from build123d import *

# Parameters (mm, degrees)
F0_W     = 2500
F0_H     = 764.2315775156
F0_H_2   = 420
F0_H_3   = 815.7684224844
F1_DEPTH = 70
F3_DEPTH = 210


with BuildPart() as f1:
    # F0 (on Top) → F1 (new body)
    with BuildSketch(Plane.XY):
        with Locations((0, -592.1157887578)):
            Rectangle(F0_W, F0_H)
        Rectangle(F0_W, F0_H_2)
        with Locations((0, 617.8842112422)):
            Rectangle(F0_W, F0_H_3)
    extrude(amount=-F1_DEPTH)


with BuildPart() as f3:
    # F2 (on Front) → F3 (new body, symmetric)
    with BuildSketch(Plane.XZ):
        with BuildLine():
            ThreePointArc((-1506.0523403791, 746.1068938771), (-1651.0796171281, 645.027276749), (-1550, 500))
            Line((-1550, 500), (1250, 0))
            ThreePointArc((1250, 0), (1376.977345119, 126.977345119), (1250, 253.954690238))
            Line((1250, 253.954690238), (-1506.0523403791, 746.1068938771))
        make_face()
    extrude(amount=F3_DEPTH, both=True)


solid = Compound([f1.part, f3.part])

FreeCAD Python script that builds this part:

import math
import FreeCAD as App
import Part
import Sketcher

doc = App.newDocument("Part")
body = doc.addObject("PartDesign::Body", "Body")

sketch1 = doc.addObject("Sketcher::SketchObject", "Sketch")
body.addObject(sketch1)
sketch1.AttachmentSupport = (doc.XY_Plane, [""])
sketch1.MapMode = "FlatFace"
sketch1.addGeometry(Part.LineSegment(App.Vector(-1250, -974, 0), App.Vector(1250, -974, 0)), False)
sketch1.addGeometry(Part.LineSegment(App.Vector(1250, -974, 0), App.Vector(1250, 1026, 0)), False)
sketch1.addGeometry(Part.LineSegment(App.Vector(1250, 1026, 0), App.Vector(-1250, 1026, 0)), False)
sketch1.addGeometry(Part.LineSegment(App.Vector(-1250, 1026, 0), App.Vector(-1250, -974, 0)), False)
sketch1.addConstraint(Sketcher.Constraint("Coincident", 0, 2, 1, 1))
sketch1.addConstraint(Sketcher.Constraint("Coincident", 1, 2, 2, 1))
sketch1.addConstraint(Sketcher.Constraint("Coincident", 2, 2, 3, 1))
sketch1.addConstraint(Sketcher.Constraint("Coincident", 3, 2, 0, 1))
sketch1.addConstraint(Sketcher.Constraint("Horizontal", 0))
sketch1.addConstraint(Sketcher.Constraint("Vertical", 1))
sketch1.addConstraint(Sketcher.Constraint("Horizontal", 2))
sketch1.addConstraint(Sketcher.Constraint("Vertical", 3))
sketch1.addConstraint(Sketcher.Constraint("DistanceX", 0, 1, 0, 2, 2500.0))
sketch1.addConstraint(Sketcher.Constraint("DistanceY", 1, 1, 1, 2, 2000.0))
sketch1.addConstraint(Sketcher.Constraint("DistanceX", -1, 1, 0, 2, 1250.0))
sketch1.addConstraint(Sketcher.Constraint("DistanceY", 0, 2, -1, 1, 974.231578))
pad1 = doc.addObject("PartDesign::Pad", "Pad")
body.addObject(pad1)
pad1.Profile = sketch1
pad1.Length = 70
pad1.Reversed = True
body2 = doc.addObject("PartDesign::Body", "Body001")

sketch2 = doc.addObject("Sketcher::SketchObject", "Sketch001")
body2.addObject(sketch2)
sketch2.AttachmentSupport = (doc.getObject("XZ_Plane001"), [""])
sketch2.MapMode = "FlatFace"
sketch2.addGeometry(Part.ArcOfCircle(Part.Circle(App.Vector(-1528, 623, 0), App.Vector(0, 0, 1), 125), math.radians(80), math.radians(260)), False)
sketch2.addGeometry(Part.LineSegment(App.Vector(-1550, 500, 0), App.Vector(1250, 0, 0)), False)
sketch2.addGeometry(Part.ArcOfCircle(Part.Circle(App.Vector(1250, 127, 0), App.Vector(0, 0, 1), 127), math.radians(-90), math.radians(90)), False)
sketch2.addGeometry(Part.LineSegment(App.Vector(1250, 254, 0), App.Vector(-1506, 746, 0)), False)
sketch2.addConstraint(Sketcher.Constraint("Tangent", 0, 2, 1, 1))
sketch2.addConstraint(Sketcher.Constraint("Coincident", 1, 2, 2, 1))
sketch2.addConstraint(Sketcher.Constraint("Coincident", 2, 2, 3, 1))
sketch2.addConstraint(Sketcher.Constraint("Tangent", 3, 2, 0, 1))
sketch2.addConstraint(Sketcher.Constraint("PointOnObject", 1, 2, -1))
sketch2.addConstraint(Sketcher.Constraint("Parallel", 1, 3))
sketch2.addConstraint(Sketcher.Constraint("Vertical", 2, 3, 1, 2))
sketch2.addConstraint(Sketcher.Constraint("Vertical", 1, 2, 2, 2))
sketch2.addConstraint(Sketcher.Constraint("Radius", 0, 125.0))
sketch2.addConstraint(Sketcher.Constraint("DistanceX", -1, 1, 2, 3, 1250.0))
sketch2.addConstraint(Sketcher.Constraint("DistanceX", 0, 2, -1, 1, 1550.0))
sketch2.addConstraint(Sketcher.Constraint("DistanceY", -1, 1, 0, 2, 500.0))
pad2 = doc.addObject("PartDesign::Pad", "Pad001")
body2.addObject(pad2)
pad2.Profile = sketch2
pad2.Length = 420
pad2.Midplane = True

doc.recompute()
